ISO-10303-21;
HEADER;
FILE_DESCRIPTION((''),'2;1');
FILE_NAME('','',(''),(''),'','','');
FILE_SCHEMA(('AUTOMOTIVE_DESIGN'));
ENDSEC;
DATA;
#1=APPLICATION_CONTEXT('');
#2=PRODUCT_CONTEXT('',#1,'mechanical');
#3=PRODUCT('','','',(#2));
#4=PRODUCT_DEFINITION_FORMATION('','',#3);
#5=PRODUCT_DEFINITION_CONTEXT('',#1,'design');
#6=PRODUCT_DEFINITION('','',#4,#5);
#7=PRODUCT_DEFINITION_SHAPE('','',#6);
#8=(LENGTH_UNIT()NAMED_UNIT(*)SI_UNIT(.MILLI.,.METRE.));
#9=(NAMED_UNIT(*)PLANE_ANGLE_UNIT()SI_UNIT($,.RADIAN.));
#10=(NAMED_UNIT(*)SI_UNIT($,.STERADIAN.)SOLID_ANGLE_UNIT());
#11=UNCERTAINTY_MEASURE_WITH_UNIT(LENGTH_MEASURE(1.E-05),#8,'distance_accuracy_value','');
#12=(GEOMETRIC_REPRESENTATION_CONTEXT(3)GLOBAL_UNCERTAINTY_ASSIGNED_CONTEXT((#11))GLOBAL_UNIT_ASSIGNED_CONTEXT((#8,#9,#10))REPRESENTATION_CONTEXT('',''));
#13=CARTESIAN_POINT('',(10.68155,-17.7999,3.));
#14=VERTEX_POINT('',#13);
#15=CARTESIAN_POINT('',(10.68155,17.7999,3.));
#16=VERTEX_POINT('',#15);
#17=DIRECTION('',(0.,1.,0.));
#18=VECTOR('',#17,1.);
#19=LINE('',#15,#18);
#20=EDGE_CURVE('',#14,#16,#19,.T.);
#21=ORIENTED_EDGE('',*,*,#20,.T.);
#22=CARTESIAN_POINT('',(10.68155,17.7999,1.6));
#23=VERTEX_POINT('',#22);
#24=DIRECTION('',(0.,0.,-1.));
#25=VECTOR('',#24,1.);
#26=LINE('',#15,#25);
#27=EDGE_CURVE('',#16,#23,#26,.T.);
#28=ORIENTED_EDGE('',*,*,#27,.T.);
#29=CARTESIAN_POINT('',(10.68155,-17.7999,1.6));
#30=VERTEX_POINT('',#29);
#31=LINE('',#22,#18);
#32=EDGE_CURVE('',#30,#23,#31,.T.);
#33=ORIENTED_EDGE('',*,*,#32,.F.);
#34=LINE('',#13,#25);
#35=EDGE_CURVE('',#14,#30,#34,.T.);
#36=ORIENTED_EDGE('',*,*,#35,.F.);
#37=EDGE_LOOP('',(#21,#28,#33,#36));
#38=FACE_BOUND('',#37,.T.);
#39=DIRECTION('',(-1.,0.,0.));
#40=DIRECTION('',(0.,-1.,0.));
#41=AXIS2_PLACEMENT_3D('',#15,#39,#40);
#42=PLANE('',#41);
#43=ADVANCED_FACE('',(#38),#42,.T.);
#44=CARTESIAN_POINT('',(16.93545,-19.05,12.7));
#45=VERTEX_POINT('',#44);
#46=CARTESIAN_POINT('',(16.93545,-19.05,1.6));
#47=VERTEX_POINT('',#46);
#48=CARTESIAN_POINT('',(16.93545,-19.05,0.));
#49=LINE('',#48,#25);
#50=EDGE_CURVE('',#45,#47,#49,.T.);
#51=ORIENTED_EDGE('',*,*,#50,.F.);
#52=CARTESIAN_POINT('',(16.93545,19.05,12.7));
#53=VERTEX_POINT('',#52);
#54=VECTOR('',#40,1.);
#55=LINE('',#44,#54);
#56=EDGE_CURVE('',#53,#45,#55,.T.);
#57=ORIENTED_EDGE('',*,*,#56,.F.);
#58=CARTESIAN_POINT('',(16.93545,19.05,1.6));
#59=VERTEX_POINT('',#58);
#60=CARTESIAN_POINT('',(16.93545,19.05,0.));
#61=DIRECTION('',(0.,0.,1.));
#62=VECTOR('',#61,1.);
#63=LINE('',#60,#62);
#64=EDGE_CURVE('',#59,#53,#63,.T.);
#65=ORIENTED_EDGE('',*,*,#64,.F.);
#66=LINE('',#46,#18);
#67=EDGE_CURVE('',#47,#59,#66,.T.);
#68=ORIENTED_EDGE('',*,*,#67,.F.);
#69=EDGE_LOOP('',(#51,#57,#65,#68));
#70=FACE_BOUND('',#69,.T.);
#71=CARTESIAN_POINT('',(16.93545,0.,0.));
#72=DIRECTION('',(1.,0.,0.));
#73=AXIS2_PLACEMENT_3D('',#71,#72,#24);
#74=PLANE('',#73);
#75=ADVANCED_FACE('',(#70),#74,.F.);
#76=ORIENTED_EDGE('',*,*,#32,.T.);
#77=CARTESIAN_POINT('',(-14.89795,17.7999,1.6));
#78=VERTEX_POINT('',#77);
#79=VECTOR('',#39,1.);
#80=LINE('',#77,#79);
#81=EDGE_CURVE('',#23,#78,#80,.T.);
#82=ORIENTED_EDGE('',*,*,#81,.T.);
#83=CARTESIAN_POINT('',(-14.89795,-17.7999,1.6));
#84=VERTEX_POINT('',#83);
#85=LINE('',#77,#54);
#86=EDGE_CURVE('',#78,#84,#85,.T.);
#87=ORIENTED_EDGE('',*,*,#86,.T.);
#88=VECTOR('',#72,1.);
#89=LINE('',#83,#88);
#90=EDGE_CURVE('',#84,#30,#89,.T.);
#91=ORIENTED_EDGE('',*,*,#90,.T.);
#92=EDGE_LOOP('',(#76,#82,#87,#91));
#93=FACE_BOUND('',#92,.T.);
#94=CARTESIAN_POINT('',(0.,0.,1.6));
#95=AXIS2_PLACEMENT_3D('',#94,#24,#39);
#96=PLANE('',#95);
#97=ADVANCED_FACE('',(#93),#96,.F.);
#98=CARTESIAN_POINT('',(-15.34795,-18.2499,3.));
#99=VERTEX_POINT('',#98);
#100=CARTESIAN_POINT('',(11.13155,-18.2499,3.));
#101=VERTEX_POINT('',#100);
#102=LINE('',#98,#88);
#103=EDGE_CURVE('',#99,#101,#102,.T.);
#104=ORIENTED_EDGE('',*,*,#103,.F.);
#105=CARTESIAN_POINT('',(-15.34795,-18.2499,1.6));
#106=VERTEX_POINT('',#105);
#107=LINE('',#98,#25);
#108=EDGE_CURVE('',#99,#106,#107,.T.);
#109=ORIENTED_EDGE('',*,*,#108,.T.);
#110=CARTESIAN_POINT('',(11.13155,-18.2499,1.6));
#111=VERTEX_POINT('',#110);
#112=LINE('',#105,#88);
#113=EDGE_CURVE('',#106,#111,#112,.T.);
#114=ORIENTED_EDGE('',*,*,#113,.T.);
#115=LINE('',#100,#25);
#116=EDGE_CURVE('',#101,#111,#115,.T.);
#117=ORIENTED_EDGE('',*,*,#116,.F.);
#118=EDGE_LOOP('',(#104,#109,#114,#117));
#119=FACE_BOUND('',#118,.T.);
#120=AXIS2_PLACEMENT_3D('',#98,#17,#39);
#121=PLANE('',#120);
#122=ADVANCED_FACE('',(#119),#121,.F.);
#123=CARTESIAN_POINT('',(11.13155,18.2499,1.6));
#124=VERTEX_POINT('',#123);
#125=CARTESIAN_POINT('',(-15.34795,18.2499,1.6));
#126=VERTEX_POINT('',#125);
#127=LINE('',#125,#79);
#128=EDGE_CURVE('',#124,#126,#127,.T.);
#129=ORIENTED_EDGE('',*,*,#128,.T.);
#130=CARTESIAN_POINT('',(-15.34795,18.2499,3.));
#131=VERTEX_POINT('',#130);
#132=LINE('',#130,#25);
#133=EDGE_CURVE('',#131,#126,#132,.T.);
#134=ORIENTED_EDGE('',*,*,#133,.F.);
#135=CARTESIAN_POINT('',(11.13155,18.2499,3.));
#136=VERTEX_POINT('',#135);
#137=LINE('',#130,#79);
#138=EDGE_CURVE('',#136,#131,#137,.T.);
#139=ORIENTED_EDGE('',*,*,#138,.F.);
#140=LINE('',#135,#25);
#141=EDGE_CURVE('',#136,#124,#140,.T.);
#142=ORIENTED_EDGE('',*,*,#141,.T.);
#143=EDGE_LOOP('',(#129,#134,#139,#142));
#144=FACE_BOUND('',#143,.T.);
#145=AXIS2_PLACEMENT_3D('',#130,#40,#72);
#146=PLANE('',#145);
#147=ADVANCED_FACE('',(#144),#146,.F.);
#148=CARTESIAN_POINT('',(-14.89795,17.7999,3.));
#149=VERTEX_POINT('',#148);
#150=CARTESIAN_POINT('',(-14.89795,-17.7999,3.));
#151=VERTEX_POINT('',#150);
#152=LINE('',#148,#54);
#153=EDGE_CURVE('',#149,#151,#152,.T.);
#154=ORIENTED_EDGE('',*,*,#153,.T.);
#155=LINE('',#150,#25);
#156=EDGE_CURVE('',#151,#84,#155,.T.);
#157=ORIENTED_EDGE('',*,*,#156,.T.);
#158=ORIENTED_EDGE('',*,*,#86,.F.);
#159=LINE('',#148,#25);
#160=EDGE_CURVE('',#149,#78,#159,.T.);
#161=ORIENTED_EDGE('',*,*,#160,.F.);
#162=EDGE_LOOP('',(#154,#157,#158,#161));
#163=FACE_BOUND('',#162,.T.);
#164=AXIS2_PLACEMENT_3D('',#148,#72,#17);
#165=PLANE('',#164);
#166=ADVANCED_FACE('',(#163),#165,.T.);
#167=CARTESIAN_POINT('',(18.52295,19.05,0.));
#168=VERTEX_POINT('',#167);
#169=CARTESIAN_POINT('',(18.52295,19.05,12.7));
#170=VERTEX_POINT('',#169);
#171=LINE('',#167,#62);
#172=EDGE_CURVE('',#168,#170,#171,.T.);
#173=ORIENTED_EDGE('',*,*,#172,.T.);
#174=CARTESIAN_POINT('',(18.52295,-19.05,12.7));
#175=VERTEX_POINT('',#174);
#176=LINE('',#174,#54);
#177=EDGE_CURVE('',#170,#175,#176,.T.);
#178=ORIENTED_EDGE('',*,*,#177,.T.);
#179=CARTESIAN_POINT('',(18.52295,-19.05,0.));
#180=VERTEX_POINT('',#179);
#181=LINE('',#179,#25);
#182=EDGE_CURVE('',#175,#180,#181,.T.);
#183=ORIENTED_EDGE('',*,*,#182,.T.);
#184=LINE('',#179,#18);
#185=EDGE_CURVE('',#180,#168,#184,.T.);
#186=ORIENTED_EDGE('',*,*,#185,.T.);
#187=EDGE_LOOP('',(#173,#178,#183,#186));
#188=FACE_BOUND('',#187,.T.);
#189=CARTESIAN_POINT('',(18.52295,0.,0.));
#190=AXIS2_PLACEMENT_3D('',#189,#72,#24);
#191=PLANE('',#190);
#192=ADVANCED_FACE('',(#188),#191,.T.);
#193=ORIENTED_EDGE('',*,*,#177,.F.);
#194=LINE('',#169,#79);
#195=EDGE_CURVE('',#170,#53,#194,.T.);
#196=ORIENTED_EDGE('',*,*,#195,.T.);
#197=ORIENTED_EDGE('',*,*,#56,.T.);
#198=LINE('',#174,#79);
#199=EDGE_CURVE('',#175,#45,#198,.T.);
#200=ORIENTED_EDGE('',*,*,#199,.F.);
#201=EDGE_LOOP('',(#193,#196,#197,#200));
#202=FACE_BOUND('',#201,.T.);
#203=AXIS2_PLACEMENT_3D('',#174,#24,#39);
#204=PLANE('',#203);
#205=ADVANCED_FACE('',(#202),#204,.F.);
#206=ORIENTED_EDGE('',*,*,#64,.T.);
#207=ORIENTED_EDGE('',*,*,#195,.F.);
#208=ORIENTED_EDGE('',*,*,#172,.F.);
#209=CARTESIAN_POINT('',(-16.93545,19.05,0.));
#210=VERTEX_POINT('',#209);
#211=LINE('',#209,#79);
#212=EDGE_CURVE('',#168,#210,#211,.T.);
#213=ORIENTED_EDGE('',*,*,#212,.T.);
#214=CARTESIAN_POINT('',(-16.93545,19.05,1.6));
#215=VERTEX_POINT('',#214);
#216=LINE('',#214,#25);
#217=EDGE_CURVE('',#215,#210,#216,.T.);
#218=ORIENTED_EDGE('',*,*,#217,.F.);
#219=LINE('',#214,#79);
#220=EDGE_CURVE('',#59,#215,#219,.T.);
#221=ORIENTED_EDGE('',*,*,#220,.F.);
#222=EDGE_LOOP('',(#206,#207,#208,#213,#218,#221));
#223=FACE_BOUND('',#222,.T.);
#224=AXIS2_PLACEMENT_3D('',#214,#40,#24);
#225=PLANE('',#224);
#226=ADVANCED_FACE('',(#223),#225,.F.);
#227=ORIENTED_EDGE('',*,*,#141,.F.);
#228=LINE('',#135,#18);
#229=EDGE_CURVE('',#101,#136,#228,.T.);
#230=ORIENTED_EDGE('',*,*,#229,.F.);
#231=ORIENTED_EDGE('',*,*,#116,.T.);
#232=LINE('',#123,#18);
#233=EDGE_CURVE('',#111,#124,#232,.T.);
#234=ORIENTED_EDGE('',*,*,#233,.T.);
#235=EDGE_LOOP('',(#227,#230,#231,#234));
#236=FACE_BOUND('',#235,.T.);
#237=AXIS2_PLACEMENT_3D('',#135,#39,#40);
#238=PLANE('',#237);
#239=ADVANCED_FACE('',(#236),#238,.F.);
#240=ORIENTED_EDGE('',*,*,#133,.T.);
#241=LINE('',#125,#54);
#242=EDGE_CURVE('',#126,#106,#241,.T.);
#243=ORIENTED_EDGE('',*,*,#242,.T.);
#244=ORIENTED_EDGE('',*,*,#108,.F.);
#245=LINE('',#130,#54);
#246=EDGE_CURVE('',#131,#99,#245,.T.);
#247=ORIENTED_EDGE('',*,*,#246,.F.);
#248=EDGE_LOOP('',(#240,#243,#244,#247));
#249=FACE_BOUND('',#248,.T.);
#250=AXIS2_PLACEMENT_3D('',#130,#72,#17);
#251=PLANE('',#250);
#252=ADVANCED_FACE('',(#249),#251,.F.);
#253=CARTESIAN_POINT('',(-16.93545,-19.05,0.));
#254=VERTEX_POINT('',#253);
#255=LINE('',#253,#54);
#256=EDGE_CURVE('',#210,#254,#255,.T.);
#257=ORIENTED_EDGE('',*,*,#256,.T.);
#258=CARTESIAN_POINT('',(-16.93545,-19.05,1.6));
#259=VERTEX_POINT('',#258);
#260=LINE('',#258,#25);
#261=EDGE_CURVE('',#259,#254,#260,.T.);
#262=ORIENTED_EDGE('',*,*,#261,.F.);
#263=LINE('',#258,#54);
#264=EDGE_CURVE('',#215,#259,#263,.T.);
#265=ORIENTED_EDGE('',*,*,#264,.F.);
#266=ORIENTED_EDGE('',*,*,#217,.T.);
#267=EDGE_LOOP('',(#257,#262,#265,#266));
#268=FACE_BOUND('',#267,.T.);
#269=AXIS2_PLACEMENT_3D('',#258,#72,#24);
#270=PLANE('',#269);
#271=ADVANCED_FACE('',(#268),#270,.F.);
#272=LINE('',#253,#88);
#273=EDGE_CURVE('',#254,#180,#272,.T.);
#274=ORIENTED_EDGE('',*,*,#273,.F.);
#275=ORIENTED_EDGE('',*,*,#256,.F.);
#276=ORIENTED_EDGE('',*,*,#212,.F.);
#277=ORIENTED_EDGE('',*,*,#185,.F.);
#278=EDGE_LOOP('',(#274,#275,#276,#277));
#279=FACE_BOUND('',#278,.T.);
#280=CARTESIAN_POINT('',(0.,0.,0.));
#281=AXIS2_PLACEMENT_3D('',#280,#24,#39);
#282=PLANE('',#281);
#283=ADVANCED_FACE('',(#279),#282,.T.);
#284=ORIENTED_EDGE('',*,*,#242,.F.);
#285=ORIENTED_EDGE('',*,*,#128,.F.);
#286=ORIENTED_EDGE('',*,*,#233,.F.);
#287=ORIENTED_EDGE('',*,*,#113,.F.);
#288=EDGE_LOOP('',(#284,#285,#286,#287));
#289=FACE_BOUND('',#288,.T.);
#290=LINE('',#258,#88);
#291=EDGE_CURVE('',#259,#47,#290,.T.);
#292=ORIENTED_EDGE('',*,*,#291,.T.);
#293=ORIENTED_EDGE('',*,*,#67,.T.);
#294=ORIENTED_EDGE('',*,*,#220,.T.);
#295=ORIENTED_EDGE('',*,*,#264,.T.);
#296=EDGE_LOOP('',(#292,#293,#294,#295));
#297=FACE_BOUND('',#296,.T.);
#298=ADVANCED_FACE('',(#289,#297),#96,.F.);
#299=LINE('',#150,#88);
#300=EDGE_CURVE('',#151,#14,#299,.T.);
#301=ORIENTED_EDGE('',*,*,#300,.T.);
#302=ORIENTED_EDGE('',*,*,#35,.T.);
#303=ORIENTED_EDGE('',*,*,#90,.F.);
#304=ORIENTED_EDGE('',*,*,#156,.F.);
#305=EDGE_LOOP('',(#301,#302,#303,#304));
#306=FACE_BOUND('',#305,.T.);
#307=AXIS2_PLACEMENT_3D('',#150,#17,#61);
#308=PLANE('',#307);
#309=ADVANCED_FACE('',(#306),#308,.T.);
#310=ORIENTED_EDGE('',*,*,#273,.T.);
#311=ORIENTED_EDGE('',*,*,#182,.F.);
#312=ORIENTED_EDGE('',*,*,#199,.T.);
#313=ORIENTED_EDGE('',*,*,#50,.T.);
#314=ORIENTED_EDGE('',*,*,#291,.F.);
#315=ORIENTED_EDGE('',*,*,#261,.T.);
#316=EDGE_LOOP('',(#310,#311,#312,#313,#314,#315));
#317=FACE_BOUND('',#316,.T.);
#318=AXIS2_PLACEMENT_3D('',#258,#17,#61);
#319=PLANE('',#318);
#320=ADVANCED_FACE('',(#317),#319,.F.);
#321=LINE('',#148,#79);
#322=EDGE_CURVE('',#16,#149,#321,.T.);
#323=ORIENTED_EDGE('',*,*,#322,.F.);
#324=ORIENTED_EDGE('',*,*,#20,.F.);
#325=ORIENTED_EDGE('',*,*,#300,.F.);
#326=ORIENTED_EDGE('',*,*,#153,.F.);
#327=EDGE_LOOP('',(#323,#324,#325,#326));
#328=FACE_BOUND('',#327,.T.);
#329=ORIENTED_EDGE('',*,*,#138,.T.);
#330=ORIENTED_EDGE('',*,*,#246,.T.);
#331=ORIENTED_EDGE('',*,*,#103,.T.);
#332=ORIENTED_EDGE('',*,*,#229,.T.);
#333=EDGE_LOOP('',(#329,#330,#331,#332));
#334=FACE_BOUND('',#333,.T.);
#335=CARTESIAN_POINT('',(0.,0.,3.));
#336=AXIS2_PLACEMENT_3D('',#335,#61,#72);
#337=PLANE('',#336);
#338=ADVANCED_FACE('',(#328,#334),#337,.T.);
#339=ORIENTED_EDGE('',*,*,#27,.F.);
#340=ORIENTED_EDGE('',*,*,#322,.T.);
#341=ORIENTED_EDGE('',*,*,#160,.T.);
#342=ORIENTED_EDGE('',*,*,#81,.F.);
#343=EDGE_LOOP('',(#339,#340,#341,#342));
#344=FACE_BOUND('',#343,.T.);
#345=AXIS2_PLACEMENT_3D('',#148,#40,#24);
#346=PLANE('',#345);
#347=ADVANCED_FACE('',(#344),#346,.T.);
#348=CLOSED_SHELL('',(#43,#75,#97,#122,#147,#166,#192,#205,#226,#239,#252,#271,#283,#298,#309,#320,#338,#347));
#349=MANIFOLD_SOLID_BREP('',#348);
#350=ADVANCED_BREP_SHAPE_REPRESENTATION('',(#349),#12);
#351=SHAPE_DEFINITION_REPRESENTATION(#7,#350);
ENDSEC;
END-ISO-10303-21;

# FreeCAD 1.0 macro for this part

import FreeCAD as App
import Part
import Sketcher
from FreeCAD import Vector
Q = App.Units.Quantity


def add_polygon(sketch, points):
    """Adds a closed chain of lines whose ends are joined by coincident constraints."""
    first, n = sketch.GeometryCount, len(points)
    for a, b in zip(points, points[1:] + points[:1]):
        sketch.addGeometry(Part.LineSegment(App.Vector(*a, 0), App.Vector(*b, 0)), False)
    for i in range(n):
        sketch.addConstraint(Sketcher.Constraint("Coincident", first + i, 2, first + (i + 1) % n, 1))

doc = App.newDocument("Part")
body = doc.addObject("PartDesign::Body", "Body")

sketch1 = doc.addObject("Sketcher::SketchObject", "Sketch")
body.addObject(sketch1)
sketch1.AttachmentSupport = (doc.XY_Plane, [""])
sketch1.MapMode = "FlatFace"
add_polygon(sketch1, [(-17, 19), (-17, -19), (17, -19), (17, 19)])
sketch1.addConstraint(Sketcher.Constraint("Vertical", 0))
sketch1.addConstraint(Sketcher.Constraint("Horizontal", 1))
sketch1.addConstraint(Sketcher.Constraint("Vertical", 2))
sketch1.addConstraint(Sketcher.Constraint("Horizontal", 3))
sketch1.addConstraint(Sketcher.Constraint("Symmetric", 0, 2, 2, 2, -1, 1))
sketch1.addConstraint(Sketcher.Constraint("DistanceY", 0, 2, 0, 1, Q("1.5 in")))
sketch1.addConstraint(Sketcher.Constraint("DistanceX", 1, 1, 1, 2, Q("1.3335 in")))
pad1 = doc.addObject("PartDesign::Pad", "Pad")
body.addObject(pad1)
pad1.Profile = sketch1
pad1.Length = 1.6

sketch2 = doc.addObject("Sketcher::SketchObject", "Sketch001")
body.addObject(sketch2)
sketch2.AttachmentSupport = (doc.XY_Plane, [""])
sketch2.MapMode = "FlatFace"
sketch2.AttachmentOffset = App.Placement(Vector(0, 0, 1.6), App.Rotation())
add_polygon(sketch2, [(-15, 18), (-15, -18), (11, -18), (11, 18)])
add_polygon(sketch2, [(11, -18), (-15, -18), (-15, 18), (11, 18)])
sketch2.addConstraint(Sketcher.Constraint("Vertical", 0))
sketch2.addConstraint(Sketcher.Constraint("Horizontal", 1))
sketch2.addConstraint(Sketcher.Constraint("Vertical", 2))
sketch2.addConstraint(Sketcher.Constraint("Horizontal", 3))
sketch2.addConstraint(Sketcher.Constraint("Horizontal", 4))
sketch2.addConstraint(Sketcher.Constraint("Vertical", 5))
sketch2.addConstraint(Sketcher.Constraint("Horizontal", 6))
sketch2.addConstraint(Sketcher.Constraint("Vertical", 7))
sketch2.addConstraint(Sketcher.Constraint("DistanceY", 0, 2, 0, 1, Q("1.437 in")))
sketch2.addConstraint(Sketcher.Constraint("DistanceX", 1, 1, 1, 2, Q("1.0425 in")))
sketch2.addConstraint(Sketcher.Constraint("DistanceX", 4, 2, 4, 1, 25.5795))
sketch2.addConstraint(Sketcher.Constraint("DistanceY", 5, 1, 5, 2, 35.5998))
sketch2.addConstraint(Sketcher.Constraint("DistanceY", 0, 2, -1, 1, Q("0.7185 in")))
sketch2.addConstraint(Sketcher.Constraint("DistanceY", 4, 2, -1, 1, 17.7999))
sketch2.addConstraint(Sketcher.Constraint("DistanceX", 0, 2, 4, 2, 0.45))
sketch2.addConstraint(Sketcher.Constraint("DistanceX", 0, 2, -1, 1, 15.34795))
pad2 = doc.addObject("PartDesign::Pad", "Pad001")
body.addObject(pad2)
pad2.Profile = sketch2
pad2.Length = 1.4

sketch3 = doc.addObject("Sketcher::SketchObject", "Sketch002")
body.addObject(sketch3)
sketch3.AttachmentSupport = (doc.YZ_Plane, [""])
sketch3.MapMode = "FlatFace"
sketch3.AttachmentOffset = App.Placement(Vector(0, 0, 16.93545), App.Rotation())
add_polygon(sketch3, [(19, 13), (-19, 13), (-19, 0), (19, 0)])
sketch3.addConstraint(Sketcher.Constraint("Horizontal", 0))
sketch3.addConstraint(Sketcher.Constraint("Vertical", 1))
sketch3.addConstraint(Sketcher.Constraint("Horizontal", 2))
sketch3.addConstraint(Sketcher.Constraint("Vertical", 3))
sketch3.addConstraint(Sketcher.Constraint("Symmetric", 1, 2, 2, 2, -1, 1))
sketch3.addConstraint(Sketcher.Constraint("DistanceX", 0, 2, 0, 1, Q("1.5 in")))
sketch3.addConstraint(Sketcher.Constraint("DistanceY", 1, 2, 1, 1, Q("0.5 in")))
pad3 = doc.addObject("PartDesign::Pad", "Pad002")
body.addObject(pad3)
pad3.Profile = sketch3
pad3.Length = Q("0.0625 in")

doc.recompute()
